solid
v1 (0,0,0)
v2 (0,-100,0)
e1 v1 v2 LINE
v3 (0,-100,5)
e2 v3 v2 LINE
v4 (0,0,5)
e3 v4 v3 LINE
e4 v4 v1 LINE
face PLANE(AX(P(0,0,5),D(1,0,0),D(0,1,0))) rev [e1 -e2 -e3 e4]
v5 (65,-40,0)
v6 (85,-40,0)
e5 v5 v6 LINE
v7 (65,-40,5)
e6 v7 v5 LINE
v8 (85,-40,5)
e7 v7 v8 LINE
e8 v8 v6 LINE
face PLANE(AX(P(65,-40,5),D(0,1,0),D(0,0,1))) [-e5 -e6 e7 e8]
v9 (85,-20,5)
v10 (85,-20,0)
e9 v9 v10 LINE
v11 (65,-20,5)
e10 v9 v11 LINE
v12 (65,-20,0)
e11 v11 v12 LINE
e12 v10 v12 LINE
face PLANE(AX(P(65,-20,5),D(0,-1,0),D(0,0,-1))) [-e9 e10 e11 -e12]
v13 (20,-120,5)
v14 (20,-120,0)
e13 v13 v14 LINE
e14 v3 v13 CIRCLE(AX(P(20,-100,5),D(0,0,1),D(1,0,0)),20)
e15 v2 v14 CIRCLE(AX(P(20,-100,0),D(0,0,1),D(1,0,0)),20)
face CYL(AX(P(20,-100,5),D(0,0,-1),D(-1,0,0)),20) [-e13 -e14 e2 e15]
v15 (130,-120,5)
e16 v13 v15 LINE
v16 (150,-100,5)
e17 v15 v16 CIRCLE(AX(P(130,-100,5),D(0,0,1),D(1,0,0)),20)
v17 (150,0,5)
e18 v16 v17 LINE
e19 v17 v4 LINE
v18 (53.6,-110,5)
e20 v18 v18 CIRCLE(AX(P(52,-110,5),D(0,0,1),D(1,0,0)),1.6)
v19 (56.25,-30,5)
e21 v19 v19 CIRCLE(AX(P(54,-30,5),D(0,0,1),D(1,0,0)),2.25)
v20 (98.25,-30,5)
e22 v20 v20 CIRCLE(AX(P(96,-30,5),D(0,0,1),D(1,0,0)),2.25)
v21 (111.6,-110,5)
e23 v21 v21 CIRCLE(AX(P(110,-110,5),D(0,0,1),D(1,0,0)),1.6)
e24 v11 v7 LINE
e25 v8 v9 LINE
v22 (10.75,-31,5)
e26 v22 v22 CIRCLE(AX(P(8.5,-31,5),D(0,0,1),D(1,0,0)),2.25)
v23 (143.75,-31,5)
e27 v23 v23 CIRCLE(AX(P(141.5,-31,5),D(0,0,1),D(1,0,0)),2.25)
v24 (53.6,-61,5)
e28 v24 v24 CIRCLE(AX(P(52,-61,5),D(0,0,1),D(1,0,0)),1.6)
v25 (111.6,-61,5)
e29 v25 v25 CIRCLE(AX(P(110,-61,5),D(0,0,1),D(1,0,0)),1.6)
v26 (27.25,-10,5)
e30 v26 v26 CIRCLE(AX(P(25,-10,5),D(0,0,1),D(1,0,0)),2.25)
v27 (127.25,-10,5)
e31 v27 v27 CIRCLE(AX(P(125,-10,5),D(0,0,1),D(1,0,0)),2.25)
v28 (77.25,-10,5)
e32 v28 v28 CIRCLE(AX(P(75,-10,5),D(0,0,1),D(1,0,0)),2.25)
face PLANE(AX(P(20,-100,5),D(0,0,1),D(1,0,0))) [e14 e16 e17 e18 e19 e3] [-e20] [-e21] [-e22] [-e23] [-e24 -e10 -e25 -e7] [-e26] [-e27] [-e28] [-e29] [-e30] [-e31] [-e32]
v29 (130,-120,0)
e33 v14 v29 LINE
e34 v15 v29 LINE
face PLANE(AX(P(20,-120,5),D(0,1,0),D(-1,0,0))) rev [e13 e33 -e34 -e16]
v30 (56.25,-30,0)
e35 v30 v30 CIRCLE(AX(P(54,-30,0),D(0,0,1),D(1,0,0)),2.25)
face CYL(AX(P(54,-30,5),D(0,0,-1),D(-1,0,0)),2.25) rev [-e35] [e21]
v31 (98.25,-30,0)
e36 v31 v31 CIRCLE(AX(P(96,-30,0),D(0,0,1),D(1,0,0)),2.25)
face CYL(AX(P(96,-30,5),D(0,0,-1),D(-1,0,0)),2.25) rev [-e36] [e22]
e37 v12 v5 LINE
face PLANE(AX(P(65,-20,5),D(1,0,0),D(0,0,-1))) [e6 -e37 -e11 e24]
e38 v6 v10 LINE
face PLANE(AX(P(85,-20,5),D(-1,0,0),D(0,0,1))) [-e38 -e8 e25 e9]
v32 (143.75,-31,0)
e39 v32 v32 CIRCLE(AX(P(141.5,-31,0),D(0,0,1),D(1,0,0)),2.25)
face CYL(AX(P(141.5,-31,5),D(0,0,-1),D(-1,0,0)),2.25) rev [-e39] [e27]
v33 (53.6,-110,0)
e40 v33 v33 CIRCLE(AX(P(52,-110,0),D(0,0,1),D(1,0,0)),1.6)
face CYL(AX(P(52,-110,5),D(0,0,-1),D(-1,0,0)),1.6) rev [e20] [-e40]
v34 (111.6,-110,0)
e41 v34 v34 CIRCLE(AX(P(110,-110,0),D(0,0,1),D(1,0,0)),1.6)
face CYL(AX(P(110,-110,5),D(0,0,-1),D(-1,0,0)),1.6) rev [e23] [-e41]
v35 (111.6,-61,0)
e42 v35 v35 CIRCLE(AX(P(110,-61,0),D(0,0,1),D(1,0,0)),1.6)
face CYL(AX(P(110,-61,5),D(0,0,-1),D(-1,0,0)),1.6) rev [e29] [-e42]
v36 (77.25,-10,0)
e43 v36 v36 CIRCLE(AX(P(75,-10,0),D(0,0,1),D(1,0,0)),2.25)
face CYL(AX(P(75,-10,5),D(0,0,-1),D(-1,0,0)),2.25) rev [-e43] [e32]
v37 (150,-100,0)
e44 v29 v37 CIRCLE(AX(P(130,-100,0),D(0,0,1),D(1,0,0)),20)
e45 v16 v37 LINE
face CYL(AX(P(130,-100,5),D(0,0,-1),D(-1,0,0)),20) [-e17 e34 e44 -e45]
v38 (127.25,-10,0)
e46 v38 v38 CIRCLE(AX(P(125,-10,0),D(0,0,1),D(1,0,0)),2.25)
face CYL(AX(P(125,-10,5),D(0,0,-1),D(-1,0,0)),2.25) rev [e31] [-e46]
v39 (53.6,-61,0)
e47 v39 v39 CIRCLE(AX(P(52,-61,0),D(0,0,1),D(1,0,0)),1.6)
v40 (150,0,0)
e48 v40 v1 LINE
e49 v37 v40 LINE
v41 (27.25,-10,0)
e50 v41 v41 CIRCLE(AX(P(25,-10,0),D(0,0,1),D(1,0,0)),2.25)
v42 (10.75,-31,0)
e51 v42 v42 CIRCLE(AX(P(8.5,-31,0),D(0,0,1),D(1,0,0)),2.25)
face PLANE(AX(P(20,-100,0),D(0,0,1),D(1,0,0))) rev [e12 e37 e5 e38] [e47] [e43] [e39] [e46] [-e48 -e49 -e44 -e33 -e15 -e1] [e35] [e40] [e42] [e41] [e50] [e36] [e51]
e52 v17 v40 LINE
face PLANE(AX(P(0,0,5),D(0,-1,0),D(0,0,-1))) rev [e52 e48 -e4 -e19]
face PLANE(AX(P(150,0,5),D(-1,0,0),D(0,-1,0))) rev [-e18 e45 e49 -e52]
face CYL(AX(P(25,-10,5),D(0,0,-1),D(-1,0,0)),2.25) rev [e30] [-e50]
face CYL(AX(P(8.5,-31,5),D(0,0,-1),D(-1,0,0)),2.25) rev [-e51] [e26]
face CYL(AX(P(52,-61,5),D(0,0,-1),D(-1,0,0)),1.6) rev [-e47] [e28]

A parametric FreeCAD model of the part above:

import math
import FreeCAD as App
import Part
import Sketcher
Q = App.Units.Quantity


def add_polygon(sketch, points):
    """Adds a closed chain of lines whose ends are joined by coincident constraints."""
    first, n = sketch.GeometryCount, len(points)
    for a, b in zip(points, points[1:] + points[:1]):
        sketch.addGeometry(Part.LineSegment(App.Vector(*a, 0), App.Vector(*b, 0)), False)
    for i in range(n):
        sketch.addConstraint(Sketcher.Constraint("Coincident", first + i, 2, first + (i + 1) % n, 1))

doc = App.newDocument("Part")
body = doc.addObject("PartDesign::Body", "Body")

sketch1 = doc.addObject("Sketcher::SketchObject", "Sketch")
body.addObject(sketch1)
sketch1.AttachmentSupport = (doc.XY_Plane, [""])
sketch1.MapMode = "FlatFace"
sketch1.addGeometry(Part.LineSegment(App.Vector(150, 0, 0), App.Vector(0, 0, 0)), False)
sketch1.addGeometry(Part.LineSegment(App.Vector(0, 0, 0), App.Vector(0, -100, 0)), False)
sketch1.addGeometry(Part.ArcOfCircle(Part.Circle(App.Vector(20, -100, 0), App.Vector(0, 0, 1), 20), math.radians(180), math.radians(270)), False)
sketch1.addGeometry(Part.LineSegment(App.Vector(20, -120, 0), App.Vector(130, -120, 0)), False)
sketch1.addGeometry(Part.ArcOfCircle(Part.Circle(App.Vector(130, -100, 0), App.Vector(0, 0, 1), 20), math.radians(-90), math.radians(0)), False)
sketch1.addGeometry(Part.LineSegment(App.Vector(150, -100, 0), App.Vector(150, 0, 0)), False)
sketch1.addGeometry(Part.Circle(App.Vector(110, -110, 0), App.Vector(0, 0, 1), 1.6), False)
sketch1.addGeometry(Part.Circle(App.Vector(110, -61, 0), App.Vector(0, 0, 1), 1.6), False)
sketch1.addGeometry(Part.Circle(App.Vector(52, -110, 0), App.Vector(0, 0, 1), 1.6), False)
sketch1.addGeometry(Part.Circle(App.Vector(52, -61, 0), App.Vector(0, 0, 1), 1.6), False)
sketch1.addGeometry(Part.Circle(App.Vector(141.5, -31, 0), App.Vector(0, 0, 1), 2.2), False)
sketch1.addGeometry(Part.Circle(App.Vector(125, -10, 0), App.Vector(0, 0, 1), 2.2), False)
sketch1.addGeometry(Part.Circle(App.Vector(96, -30, 0), App.Vector(0, 0, 1), 2.2), False)
add_polygon(sketch1, [(65, -40), (65, -20), (85, -20), (85, -40)])
sketch1.addGeometry(Part.Circle(App.Vector(54, -30, 0), App.Vector(0, 0, 1), 2.2), False)
sketch1.addGeometry(Part.Circle(App.Vector(75, -10, 0), App.Vector(0, 0, 1), 2.2), False)
sketch1.addGeometry(Part.Circle(App.Vector(8.5, -31, 0), App.Vector(0, 0, 1), 2.2), False)
sketch1.addGeometry(Part.Circle(App.Vector(25, -10, 0), App.Vector(0, 0, 1), 2.2), False)
sketch1.addConstraint(Sketcher.Constraint("Coincident", 0, 2, 1, 1))
sketch1.addConstraint(Sketcher.Constraint("Tangent", 1, 2, 2, 1))
sketch1.addConstraint(Sketcher.Constraint("Tangent", 2, 2, 3, 1))
sketch1.addConstraint(Sketcher.Constraint("Tangent", 3, 2, 4, 1))
sketch1.addConstraint(Sketcher.Constraint("Tangent", 4, 2, 5, 1))
sketch1.addConstraint(Sketcher.Constraint("Coincident", 5, 2, 0, 1))
sketch1.addConstraint(Sketcher.Constraint("Horizontal", 0))
sketch1.addConstraint(Sketcher.Constraint("Vertical", 1))
sketch1.addConstraint(Sketcher.Constraint("Horizontal", 3))
sketch1.addConstraint(Sketcher.Constraint("Vertical", 5))
sketch1.addConstraint(Sketcher.Constraint("Vertical", 13))
sketch1.addConstraint(Sketcher.Constraint("Horizontal", 14))
sketch1.addConstraint(Sketcher.Constraint("Vertical", 15))
sketch1.addConstraint(Sketcher.Constraint("Horizontal", 16))
sketch1.addConstraint(Sketcher.Constraint("Coincident", 0, 2, -1, 1))
sketch1.addConstraint(Sketcher.Constraint("Equal", 2, 4))
sketch1.addConstraint(Sketcher.Constraint("Equal", 6, 7))
sketch1.addConstraint(Sketcher.Constraint("Equal", 7, 8))
sketch1.addConstraint(Sketcher.Constraint("Equal", 8, 9))
sketch1.addConstraint(Sketcher.Constraint("Equal", 10, 11))
sketch1.addConstraint(Sketcher.Constraint("Equal", 11, 12))
sketch1.addConstraint(Sketcher.Constraint("Equal", 12, 17))
sketch1.addConstraint(Sketcher.Constraint("Equal", 17, 18))
sketch1.addConstraint(Sketcher.Constraint("Equal", 18, 19))
sketch1.addConstraint(Sketcher.Constraint("Equal", 19, 20))
sketch1.addConstraint(Sketcher.Constraint("Horizontal", 6, 3, 8, 3))
sketch1.addConstraint(Sketcher.Constraint("Horizontal", 7, 3, 9, 3))
sketch1.addConstraint(Sketcher.Constraint("Horizontal", 12, 3, 17, 3))
sketch1.addConstraint(Sketcher.Constraint("Horizontal", 11, 3, 18, 3))
sketch1.addConstraint(Sketcher.Constraint("Horizontal", 10, 3, 19, 3))
sketch1.addConstraint(Sketcher.Constraint("Horizontal", 18, 3, 20, 3))
sketch1.addConstraint(Sketcher.Constraint("Vertical", 6, 3, 7, 3))
sketch1.addConstraint(Sketcher.Constraint("Vertical", 8, 3, 9, 3))
sketch1.addConstraint(Sketcher.Constraint("Equal", 16, 13))
sketch1.addConstraint(Sketcher.Constraint("Radius", 2, Q("20 mm")))
sketch1.addConstraint(Sketcher.Constraint("Diameter", 6, Q("3.2 mm")))
sketch1.addConstraint(Sketcher.Constraint("Diameter", 10, Q("4.5 mm")))
sketch1.addConstraint(Sketcher.Constraint("DistanceX", 0, 2, 0, 1, Q("150 mm")))
sketch1.addConstraint(Sketcher.Constraint("DistanceX", 14, 1, 14, 2, Q("20 mm")))
sketch1.addConstraint(Sketcher.Constraint("DistanceY", 1, 2, 1, 1, Q("100 mm")))
sketch1.addConstraint(Sketcher.Constraint("DistanceX", -1, 1, 6, 3, Q("110 mm")))
sketch1.addConstraint(Sketcher.Constraint("DistanceY", 6, 3, -1, 1, Q("110 mm")))
sketch1.addConstraint(Sketcher.Constraint("DistanceY", 7, 3, -1, 1, Q("61 mm")))
sketch1.addConstraint(Sketcher.Constraint("DistanceX", -1, 1, 8, 3, Q("52 mm")))
sketch1.addConstraint(Sketcher.Constraint("DistanceY", 10, 3, -1, 1, Q("31 mm")))
sketch1.addConstraint(Sketcher.Constraint("DistanceX", -1, 1, 11, 3, Q("125 mm")))
sketch1.addConstraint(Sketcher.Constraint("DistanceY", 11, 3, -1, 1, Q("10 mm")))
sketch1.addConstraint(Sketcher.Constraint("DistanceX", -1, 1, 12, 3, Q("96 mm")))
sketch1.addConstraint(Sketcher.Constraint("DistanceY", 12, 3, -1, 1, Q("30 mm")))
sketch1.addConstraint(Sketcher.Constraint("DistanceX", -1, 1, 17, 3, Q("54 mm")))
sketch1.addConstraint(Sketcher.Constraint("DistanceX", -1, 1, 18, 3, Q("75 mm")))
sketch1.addConstraint(Sketcher.Constraint("DistanceX", -1, 1, 20, 3, Q("25 mm")))
sketch1.addConstraint(Sketcher.Constraint("DistanceX", -1, 1, 13, 2, Q("65 mm")))
sketch1.addConstraint(Sketcher.Constraint("DistanceY", 13, 2, -1, 1, Q("20 mm")))
sketch1.addConstraint(Sketcher.Constraint("DistanceX", -1, 1, 10, 3, Q("141.5 mm")))
sketch1.addConstraint(Sketcher.Constraint("DistanceX", -1, 1, 19, 3, Q("8.5 mm")))
pad1 = doc.addObject("PartDesign::Pad", "Pad")
body.addObject(pad1)
pad1.Profile = sketch1
pad1.Length = 5

doc.recompute()
